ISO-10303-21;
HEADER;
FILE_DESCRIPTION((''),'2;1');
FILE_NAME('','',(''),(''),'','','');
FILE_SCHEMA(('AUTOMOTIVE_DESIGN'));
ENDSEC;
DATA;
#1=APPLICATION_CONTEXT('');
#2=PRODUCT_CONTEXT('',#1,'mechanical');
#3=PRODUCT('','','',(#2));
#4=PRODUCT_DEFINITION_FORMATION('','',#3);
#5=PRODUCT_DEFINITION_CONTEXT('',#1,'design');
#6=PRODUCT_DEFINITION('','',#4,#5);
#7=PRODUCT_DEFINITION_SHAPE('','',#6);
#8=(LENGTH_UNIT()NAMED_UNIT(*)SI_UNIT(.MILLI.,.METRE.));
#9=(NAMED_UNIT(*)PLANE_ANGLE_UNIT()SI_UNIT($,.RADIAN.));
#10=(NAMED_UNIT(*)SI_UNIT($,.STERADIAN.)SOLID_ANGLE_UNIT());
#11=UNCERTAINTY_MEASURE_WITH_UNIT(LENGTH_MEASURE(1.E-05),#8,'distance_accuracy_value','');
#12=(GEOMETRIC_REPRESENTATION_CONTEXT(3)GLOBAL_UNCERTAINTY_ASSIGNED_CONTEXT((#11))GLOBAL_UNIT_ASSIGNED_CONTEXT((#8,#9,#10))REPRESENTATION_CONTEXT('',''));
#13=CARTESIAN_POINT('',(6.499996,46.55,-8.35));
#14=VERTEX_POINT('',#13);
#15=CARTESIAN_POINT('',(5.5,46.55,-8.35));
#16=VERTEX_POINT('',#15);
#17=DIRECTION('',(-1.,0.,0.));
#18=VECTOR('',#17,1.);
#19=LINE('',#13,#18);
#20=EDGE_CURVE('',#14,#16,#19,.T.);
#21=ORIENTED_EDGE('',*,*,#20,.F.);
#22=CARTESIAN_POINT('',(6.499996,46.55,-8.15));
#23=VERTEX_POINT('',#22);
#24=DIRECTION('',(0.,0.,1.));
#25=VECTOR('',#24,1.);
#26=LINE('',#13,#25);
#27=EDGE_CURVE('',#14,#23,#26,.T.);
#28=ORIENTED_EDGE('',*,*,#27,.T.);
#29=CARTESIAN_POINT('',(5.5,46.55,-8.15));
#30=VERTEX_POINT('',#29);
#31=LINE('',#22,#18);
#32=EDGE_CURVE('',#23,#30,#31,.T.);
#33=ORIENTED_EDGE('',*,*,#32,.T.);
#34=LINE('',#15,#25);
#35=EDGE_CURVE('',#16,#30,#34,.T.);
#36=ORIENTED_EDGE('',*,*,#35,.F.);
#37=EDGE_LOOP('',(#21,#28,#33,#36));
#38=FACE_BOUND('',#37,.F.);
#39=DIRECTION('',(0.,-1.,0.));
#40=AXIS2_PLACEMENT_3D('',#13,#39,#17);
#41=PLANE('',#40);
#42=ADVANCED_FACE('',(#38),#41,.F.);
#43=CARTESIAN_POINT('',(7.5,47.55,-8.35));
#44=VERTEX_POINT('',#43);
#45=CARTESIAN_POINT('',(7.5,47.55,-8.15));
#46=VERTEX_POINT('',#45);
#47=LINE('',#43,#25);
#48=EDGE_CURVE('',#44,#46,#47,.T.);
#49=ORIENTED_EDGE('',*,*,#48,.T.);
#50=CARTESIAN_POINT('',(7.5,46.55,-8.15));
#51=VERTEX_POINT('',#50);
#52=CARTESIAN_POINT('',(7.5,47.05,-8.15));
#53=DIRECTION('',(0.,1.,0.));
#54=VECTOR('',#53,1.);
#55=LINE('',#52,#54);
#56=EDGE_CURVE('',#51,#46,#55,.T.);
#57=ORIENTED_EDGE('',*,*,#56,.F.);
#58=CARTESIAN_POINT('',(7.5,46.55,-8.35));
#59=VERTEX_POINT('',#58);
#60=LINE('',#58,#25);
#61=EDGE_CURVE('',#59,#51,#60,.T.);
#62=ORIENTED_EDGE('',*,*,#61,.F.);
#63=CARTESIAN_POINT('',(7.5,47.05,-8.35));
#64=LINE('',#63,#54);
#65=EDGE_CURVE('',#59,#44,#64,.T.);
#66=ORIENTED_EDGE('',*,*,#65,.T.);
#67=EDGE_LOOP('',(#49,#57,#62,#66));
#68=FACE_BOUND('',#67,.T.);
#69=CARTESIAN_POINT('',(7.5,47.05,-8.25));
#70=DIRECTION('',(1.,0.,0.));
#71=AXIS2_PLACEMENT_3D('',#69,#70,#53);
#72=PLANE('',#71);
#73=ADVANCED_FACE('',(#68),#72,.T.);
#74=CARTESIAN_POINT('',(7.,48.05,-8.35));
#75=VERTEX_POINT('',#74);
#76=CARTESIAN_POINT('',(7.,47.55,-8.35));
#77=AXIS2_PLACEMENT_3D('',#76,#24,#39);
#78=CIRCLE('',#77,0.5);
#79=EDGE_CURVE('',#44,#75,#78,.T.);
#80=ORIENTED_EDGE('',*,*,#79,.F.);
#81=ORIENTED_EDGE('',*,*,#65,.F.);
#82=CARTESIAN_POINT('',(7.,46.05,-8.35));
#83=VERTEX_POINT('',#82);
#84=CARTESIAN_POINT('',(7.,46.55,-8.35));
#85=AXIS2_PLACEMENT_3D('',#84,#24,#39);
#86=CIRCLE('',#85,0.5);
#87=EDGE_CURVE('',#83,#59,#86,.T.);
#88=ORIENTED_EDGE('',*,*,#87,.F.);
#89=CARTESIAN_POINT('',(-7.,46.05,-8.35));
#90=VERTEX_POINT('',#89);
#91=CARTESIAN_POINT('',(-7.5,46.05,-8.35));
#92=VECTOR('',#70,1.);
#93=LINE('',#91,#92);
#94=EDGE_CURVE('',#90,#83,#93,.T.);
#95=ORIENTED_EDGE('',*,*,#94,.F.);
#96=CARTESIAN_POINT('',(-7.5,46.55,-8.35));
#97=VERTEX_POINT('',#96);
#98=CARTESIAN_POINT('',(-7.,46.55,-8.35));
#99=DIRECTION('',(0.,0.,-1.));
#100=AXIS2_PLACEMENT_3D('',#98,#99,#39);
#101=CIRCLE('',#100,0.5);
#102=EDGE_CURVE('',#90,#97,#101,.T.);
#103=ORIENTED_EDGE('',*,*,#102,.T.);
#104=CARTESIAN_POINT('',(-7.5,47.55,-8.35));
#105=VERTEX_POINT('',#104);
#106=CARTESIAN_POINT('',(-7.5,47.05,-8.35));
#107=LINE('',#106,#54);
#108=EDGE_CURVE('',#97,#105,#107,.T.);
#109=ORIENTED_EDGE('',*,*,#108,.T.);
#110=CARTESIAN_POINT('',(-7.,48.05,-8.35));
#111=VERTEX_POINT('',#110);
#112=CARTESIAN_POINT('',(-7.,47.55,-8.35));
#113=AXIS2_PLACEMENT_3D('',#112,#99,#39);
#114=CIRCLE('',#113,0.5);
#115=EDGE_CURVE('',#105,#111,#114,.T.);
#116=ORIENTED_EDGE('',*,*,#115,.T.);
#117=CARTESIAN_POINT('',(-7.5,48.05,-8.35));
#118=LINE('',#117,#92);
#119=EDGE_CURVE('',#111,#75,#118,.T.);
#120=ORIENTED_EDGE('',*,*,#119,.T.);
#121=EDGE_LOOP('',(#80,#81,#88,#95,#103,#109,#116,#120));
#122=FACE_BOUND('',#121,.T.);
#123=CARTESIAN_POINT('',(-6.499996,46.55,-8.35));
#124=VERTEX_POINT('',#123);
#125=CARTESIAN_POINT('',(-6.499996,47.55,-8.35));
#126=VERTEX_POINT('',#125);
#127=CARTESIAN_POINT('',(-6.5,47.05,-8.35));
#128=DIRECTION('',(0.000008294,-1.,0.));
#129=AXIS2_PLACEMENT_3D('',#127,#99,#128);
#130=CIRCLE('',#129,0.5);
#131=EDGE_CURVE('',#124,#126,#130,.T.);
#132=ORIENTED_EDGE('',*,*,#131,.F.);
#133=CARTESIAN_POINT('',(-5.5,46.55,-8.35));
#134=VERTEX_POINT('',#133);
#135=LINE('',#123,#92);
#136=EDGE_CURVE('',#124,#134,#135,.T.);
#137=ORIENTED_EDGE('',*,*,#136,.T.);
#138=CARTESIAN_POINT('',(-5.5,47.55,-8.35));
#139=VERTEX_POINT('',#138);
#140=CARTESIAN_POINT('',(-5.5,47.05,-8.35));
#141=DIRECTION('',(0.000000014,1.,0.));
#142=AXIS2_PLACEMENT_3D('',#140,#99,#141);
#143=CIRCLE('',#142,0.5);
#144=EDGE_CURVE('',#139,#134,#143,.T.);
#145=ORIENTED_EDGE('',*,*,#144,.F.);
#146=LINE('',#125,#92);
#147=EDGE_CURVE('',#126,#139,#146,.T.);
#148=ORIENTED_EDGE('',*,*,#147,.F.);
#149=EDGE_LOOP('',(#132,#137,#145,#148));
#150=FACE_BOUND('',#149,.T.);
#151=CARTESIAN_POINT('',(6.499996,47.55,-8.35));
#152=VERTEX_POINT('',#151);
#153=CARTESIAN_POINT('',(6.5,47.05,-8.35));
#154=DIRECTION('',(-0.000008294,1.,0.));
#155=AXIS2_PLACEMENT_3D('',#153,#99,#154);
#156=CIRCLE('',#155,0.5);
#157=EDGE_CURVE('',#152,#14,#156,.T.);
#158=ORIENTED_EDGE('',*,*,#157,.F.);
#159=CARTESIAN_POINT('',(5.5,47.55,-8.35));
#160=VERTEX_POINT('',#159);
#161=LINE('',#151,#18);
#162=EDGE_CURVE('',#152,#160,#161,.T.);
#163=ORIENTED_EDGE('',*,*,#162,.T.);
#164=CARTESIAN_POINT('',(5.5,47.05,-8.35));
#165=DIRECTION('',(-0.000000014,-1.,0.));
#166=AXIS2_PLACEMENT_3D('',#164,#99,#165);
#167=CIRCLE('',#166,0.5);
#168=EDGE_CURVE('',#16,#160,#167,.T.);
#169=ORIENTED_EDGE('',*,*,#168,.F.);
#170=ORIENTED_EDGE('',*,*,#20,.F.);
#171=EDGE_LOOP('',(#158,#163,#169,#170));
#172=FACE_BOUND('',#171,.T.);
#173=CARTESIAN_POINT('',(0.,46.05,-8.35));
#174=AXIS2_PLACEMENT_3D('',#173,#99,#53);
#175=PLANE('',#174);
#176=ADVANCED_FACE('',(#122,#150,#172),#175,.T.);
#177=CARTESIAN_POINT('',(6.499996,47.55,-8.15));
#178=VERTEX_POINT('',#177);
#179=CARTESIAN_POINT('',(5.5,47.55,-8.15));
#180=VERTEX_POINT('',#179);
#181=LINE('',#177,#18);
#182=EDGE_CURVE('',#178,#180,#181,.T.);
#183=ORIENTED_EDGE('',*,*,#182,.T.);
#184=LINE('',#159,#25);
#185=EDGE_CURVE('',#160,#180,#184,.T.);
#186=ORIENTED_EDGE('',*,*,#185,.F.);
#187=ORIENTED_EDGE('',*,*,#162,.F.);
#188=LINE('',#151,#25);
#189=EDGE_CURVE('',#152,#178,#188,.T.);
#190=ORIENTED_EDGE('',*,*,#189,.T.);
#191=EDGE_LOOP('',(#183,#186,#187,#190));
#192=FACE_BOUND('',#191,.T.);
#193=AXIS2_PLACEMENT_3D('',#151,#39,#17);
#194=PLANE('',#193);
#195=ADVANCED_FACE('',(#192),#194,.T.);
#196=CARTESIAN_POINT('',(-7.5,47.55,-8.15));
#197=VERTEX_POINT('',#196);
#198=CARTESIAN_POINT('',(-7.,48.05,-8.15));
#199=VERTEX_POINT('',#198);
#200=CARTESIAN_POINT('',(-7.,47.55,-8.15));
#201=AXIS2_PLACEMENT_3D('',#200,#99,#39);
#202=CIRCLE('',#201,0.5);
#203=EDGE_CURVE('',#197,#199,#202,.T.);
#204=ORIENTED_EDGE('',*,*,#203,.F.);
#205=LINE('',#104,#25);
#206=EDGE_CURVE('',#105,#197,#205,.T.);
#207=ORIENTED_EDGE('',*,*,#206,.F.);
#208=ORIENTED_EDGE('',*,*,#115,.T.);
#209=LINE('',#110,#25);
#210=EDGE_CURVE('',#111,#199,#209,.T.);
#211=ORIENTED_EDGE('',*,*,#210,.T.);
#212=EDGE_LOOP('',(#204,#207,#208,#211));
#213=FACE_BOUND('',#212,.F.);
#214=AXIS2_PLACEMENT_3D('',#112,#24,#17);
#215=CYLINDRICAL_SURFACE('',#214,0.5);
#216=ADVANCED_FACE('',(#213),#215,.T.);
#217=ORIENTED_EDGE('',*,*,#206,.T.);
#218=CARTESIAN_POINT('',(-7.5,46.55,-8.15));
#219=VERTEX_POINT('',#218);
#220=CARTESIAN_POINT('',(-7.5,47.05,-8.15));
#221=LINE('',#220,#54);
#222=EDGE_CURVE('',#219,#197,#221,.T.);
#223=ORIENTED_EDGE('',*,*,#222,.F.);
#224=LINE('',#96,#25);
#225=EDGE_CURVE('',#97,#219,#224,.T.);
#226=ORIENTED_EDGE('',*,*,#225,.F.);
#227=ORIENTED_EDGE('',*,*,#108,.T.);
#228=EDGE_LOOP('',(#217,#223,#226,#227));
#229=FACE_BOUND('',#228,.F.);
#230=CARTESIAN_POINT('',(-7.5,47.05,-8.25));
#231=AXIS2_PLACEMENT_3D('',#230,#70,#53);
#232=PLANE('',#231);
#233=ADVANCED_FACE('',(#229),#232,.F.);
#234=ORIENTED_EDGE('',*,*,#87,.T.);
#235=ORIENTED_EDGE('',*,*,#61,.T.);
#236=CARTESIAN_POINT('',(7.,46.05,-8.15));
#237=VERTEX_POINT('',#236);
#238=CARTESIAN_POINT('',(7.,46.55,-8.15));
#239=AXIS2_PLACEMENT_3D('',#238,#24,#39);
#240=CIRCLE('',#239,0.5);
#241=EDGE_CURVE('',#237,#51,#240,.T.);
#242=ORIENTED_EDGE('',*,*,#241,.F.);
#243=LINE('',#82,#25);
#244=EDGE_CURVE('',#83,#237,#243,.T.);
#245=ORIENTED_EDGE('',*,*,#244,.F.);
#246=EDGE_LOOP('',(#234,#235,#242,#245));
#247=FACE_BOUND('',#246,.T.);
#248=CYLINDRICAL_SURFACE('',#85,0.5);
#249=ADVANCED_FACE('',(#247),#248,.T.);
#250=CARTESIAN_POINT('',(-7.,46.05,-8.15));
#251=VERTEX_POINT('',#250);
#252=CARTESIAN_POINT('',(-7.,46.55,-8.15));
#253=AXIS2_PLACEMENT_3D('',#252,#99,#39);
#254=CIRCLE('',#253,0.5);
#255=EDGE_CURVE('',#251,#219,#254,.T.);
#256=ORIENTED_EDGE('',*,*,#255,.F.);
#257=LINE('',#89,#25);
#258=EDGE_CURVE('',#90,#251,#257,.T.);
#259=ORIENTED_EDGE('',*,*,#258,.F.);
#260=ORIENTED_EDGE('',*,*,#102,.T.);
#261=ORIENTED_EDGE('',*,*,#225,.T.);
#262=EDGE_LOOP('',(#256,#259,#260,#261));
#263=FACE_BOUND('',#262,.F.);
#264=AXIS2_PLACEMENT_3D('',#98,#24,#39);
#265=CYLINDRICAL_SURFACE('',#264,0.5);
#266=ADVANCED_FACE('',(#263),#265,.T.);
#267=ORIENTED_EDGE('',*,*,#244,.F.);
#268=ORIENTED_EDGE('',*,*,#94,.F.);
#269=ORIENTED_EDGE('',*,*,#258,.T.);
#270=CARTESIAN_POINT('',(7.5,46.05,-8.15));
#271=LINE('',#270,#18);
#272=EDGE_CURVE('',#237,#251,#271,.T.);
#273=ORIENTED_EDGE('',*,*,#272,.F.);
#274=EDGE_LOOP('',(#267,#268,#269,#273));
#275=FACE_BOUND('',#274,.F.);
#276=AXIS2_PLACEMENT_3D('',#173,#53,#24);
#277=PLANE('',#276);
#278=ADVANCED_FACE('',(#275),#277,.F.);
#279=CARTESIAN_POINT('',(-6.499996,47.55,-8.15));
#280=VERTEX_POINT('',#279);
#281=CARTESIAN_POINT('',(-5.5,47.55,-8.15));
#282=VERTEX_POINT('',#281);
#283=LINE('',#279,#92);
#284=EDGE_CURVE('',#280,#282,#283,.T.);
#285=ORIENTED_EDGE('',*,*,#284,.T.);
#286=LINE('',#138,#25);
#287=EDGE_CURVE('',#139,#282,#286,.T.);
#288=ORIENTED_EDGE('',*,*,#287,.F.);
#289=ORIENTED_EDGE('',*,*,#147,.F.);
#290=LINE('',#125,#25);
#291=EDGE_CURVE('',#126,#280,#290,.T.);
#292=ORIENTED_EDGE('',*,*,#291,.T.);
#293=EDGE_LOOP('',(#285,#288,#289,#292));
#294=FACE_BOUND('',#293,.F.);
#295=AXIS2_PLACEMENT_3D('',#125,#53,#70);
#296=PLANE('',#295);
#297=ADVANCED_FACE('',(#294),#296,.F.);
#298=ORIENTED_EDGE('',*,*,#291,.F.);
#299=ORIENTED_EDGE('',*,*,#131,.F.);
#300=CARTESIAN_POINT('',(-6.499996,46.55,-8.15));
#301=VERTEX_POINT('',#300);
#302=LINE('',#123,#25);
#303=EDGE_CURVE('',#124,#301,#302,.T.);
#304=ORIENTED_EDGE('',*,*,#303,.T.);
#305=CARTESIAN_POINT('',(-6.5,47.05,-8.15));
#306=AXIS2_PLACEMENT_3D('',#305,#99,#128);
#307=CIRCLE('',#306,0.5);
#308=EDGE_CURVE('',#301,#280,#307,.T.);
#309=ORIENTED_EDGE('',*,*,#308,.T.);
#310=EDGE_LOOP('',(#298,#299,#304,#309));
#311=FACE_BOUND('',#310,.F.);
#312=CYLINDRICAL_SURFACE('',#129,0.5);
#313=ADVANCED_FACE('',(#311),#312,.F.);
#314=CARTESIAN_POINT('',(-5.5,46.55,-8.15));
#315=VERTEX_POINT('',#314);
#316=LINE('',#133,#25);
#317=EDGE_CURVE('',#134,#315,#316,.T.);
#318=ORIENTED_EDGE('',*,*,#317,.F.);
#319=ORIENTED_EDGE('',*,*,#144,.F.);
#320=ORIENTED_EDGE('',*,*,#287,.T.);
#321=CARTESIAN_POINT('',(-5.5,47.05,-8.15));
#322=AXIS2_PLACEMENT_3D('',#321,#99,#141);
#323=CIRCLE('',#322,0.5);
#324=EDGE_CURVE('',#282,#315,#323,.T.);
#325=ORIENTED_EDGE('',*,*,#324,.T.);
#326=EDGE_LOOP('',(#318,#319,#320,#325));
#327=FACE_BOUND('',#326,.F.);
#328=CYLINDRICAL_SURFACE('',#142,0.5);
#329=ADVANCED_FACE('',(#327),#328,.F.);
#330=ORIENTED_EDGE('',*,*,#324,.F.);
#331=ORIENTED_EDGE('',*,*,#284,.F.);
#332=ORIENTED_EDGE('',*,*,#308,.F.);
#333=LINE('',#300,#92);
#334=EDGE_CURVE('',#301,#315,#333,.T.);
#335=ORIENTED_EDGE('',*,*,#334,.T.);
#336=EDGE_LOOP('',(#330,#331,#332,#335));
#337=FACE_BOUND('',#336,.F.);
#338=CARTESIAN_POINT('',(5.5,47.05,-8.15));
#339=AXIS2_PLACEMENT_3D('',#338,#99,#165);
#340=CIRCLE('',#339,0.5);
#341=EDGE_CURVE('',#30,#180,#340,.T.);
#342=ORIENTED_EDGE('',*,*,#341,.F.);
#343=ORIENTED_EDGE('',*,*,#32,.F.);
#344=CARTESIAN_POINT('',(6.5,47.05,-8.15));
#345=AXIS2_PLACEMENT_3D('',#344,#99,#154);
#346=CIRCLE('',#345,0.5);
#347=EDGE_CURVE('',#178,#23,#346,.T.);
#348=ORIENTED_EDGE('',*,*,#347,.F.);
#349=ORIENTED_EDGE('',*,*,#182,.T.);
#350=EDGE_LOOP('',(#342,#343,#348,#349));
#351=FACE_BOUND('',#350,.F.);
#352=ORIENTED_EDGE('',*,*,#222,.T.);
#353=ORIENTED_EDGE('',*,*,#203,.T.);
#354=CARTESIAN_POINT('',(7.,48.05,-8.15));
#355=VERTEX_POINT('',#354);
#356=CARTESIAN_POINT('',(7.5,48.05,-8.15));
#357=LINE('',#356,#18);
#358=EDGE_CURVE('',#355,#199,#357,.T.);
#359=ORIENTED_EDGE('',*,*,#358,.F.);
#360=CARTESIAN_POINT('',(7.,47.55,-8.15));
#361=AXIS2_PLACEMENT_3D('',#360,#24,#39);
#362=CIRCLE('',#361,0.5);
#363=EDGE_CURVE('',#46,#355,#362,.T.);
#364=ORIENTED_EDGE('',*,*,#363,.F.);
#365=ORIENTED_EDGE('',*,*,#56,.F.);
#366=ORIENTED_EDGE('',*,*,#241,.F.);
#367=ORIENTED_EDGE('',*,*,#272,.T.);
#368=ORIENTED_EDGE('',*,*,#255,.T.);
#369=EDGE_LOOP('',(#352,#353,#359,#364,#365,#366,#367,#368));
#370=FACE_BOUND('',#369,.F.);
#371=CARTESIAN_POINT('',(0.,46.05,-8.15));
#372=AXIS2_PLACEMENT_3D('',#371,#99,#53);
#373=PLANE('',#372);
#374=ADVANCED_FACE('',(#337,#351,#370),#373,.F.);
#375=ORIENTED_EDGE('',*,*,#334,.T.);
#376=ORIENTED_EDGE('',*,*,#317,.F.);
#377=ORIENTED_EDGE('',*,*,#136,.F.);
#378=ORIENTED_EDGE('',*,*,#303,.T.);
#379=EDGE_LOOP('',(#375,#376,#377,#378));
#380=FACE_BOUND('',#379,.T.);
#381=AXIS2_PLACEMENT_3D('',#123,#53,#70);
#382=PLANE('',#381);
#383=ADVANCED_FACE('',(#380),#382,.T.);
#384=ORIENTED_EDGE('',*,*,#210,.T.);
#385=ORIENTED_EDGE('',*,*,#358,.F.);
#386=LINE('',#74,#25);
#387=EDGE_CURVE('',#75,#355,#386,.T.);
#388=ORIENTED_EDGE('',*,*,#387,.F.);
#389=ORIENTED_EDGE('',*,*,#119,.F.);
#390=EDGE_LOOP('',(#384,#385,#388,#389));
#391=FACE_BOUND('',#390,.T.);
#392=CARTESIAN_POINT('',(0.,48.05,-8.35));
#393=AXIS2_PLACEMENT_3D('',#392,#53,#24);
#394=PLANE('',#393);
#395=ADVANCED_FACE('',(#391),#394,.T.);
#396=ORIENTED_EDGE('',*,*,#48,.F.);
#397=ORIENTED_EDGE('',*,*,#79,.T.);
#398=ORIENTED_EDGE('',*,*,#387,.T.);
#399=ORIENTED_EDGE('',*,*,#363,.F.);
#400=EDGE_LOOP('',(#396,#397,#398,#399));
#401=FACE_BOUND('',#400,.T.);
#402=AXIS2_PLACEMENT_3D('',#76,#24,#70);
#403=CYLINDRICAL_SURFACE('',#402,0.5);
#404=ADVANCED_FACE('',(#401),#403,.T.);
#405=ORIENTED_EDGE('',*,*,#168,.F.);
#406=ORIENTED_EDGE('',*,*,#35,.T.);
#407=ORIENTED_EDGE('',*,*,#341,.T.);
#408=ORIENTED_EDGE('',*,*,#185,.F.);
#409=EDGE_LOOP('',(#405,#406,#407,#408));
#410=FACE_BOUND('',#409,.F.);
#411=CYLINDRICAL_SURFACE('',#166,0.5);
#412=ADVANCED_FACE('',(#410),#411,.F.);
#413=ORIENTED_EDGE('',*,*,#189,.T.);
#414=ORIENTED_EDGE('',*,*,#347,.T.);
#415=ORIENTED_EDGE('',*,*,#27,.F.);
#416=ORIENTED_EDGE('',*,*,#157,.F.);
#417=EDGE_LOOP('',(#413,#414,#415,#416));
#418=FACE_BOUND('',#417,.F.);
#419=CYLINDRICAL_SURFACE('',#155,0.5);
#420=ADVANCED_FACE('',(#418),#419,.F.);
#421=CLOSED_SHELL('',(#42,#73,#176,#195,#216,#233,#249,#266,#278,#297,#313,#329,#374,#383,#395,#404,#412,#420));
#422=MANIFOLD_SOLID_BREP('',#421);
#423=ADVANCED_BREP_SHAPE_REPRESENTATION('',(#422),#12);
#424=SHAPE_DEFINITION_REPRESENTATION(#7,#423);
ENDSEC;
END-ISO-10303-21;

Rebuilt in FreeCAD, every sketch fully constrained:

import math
import FreeCAD as App
import Part
import Sketcher
Q = App.Units.Quantity


def edges_at(feature, points):
    """Names of the edges that pass closest to the given points."""
    edges = feature.Shape.Edges
    near = lambda p: min(range(len(edges)), key=lambda i: edges[i].distToShape(Part.Vertex(*p))[0])
    return sorted({f"Edge{near(p) + 1}" for p in points})

doc = App.newDocument("Part")
params = doc.addObject("Spreadsheet::Sheet", "Params")
for row, (alias, value) in enumerate([
    ("sketch1_width", "2 mm"),
    ("sketch1_height", "0.2 mm"),
    ("pad1_length", "15 mm"),
    ("sketch2_radius", "0.5 mm"),
    ("pocket1_length", "0.2 mm"),
    ("fillet_radius", "0.5 mm"),
], start=1):
    params.set(f"A{row}", alias)
    params.set(f"B{row}", "=" + value)
    params.setAlias(f"B{row}", alias)

body = doc.addObject("PartDesign::Body", "Body")

sketch1 = body.newObject("Sketcher::SketchObject", "Sketch")
sketch1.AttachmentSupport = (doc.getObject("YZ_Plane"), [""])
sketch1.MapMode = "FlatFace"
sketch1.addGeometry([
    Part.LineSegment(App.Vector(20.35, -8.15, 0), App.Vector(20.35, -8.35, 0)),
    Part.LineSegment(App.Vector(20.35, -8.35, 0), App.Vector(22.35, -8.35, 0)),
    Part.LineSegment(App.Vector(22.35, -8.35, 0), App.Vector(22.35, -8.15, 0)),
    Part.LineSegment(App.Vector(22.35, -8.15, 0), App.Vector(20.35, -8.15, 0)),
], False)
sketch1.addConstraint([
    Sketcher.Constraint("Coincident", 0, 2, 1, 1),
    Sketcher.Constraint("Coincident", 1, 2, 2, 1),
    Sketcher.Constraint("Coincident", 2, 2, 3, 1),
    Sketcher.Constraint("Coincident", 3, 2, 0, 1),
    Sketcher.Constraint("Vertical", 0),
    Sketcher.Constraint("Horizontal", 1),
    Sketcher.Constraint("Vertical", 2),
    Sketcher.Constraint("Horizontal", 3),
    Sketcher.Constraint("DistanceX", 1, 1, 1, 2, Q("2 mm")),
    Sketcher.Constraint("DistanceY", 0, 2, 0, 1, Q("0.2 mm")),
    Sketcher.Constraint("DistanceX", -1, 1, 0, 2, Q("20.35 mm")),
    Sketcher.Constraint("DistanceY", 0, 2, -1, 1, Q("8.35 mm")),
])
sketch1.setExpression("Constraints[8]", "Params.sketch1_width")
sketch1.setExpression("Constraints[9]", "Params.sketch1_height")
pad1 = body.newObject("PartDesign::Pad", "Pad")
pad1.Profile = sketch1
pad1.setExpression("Length", "Params.pad1_length")
pad1.Midplane = True

sketch2 = body.newObject("Sketcher::SketchObject", "Sketch001")
sketch2.AttachmentSupport = (doc.getObject("XY_Plane"), [""])
sketch2.MapMode = "FlatFace"
sketch2.AttachmentOffset = App.Placement(App.Vector(0, 0, -8.35), App.Rotation())
sketch2.addGeometry([
    Part.ArcOfCircle(Part.Circle(App.Vector(6.5, 21.35, 0), App.Vector(0, 0, 1), 0.5), math.radians(-90.000475), math.radians(90.000475)),
    Part.LineSegment(App.Vector(6.499996, 20.85, 0), App.Vector(5.5, 20.85, 0)),
    Part.ArcOfCircle(Part.Circle(App.Vector(5.5, 21.35, 0), App.Vector(0, 0, 1), 0.5), math.radians(90.000001), math.radians(269.999999)),
    Part.LineSegment(App.Vector(5.5, 21.85, 0), App.Vector(6.499996, 21.85, 0)),
    Part.ArcOfCircle(Part.Circle(App.Vector(-6.5, 21.35, 0), App.Vector(0, 0, 1), 0.5), math.radians(89.999525), math.radians(270.000475)),
    Part.LineSegment(App.Vector(-6.499996, 21.85, 0), App.Vector(-5.5, 21.85, 0)),
    Part.ArcOfCircle(Part.Circle(App.Vector(-5.5, 21.35, 0), App.Vector(0, 0, 1), 0.5), math.radians(-89.999999), math.radians(89.999999)),
    Part.LineSegment(App.Vector(-5.5, 20.85, 0), App.Vector(-6.499996, 20.85, 0)),
], False)
sketch2.addConstraint([
    Sketcher.Constraint("Coincident", 0, 1, 1, 1),
    Sketcher.Constraint("Tangent", 1, 2, 2, 2),
    Sketcher.Constraint("Tangent", 2, 1, 3, 1),
    Sketcher.Constraint("Coincident", 3, 2, 0, 2),
    Sketcher.Constraint("Coincident", 4, 1, 5, 1),
    Sketcher.Constraint("Tangent", 5, 2, 6, 2),
    Sketcher.Constraint("Tangent", 6, 1, 7, 1),
    Sketcher.Constraint("Coincident", 7, 2, 4, 2),
    Sketcher.Constraint("Horizontal", 1),
    Sketcher.Constraint("Horizontal", 3),
    Sketcher.Constraint("Horizontal", 5),
    Sketcher.Constraint("Horizontal", 7),
    Sketcher.Constraint("Equal", 2, 4),
    Sketcher.Constraint("Symmetric", 0, 3, 4, 3, -2),
    Sketcher.Constraint("Vertical", 0, 1, 3, 2),
    Sketcher.Constraint("Vertical", 4, 1, 7, 2),
    Sketcher.Constraint("Equal", 3, 5),
    Sketcher.Constraint("Radius", 0, Q("0.5 mm")),
    Sketcher.Constraint("DistanceX", 2, 3, 0, 3, Q("1 mm")),
    Sketcher.Constraint("DistanceX", 4, 3, 2, 3, Q("12 mm")),
    Sketcher.Constraint("DistanceX", 4, 3, 6, 3, Q("1 mm")),
    Sketcher.Constraint("DistanceY", -1, 1, 0, 3, Q("21.35 mm")),
    Sketcher.Constraint("DistanceX", 1, 2, 1, 1, Q("0.999996 mm")),
])
sketch2.setExpression("Constraints[17]", "Params.sketch2_radius")
pocket1 = body.newObject("PartDesign::Pocket", "Pocket")
pocket1.Profile = sketch2
pocket1.setExpression("Length", "Params.pocket1_length")
pocket1.Reversed = True
doc.recompute()

fillet = body.newObject("PartDesign::Fillet", "Fillet")
fillet.Base = (pocket1, edges_at(pocket1, [
    (-7.5, 22.35, -8.25),
    (-7.5, 20.35, -8.25),
    (7.5, 20.35, -8.25),
    (7.5, 22.35, -8.25),
]))
fillet.setExpression("Radius", "Params.fillet_radius")
body2 = doc.addObject("PartDesign::Body", "Body001")
doc.recompute()

body.Placement = App.Placement(App.Vector(0, 25.7, 0), App.Rotation(App.Vector(0, 0, 1), 0))
boolean = body2.newObject("PartDesign::Boolean", "Boolean")
boolean.Type = "Fuse"
boolean.addObjects([body])

doc.recompute()
